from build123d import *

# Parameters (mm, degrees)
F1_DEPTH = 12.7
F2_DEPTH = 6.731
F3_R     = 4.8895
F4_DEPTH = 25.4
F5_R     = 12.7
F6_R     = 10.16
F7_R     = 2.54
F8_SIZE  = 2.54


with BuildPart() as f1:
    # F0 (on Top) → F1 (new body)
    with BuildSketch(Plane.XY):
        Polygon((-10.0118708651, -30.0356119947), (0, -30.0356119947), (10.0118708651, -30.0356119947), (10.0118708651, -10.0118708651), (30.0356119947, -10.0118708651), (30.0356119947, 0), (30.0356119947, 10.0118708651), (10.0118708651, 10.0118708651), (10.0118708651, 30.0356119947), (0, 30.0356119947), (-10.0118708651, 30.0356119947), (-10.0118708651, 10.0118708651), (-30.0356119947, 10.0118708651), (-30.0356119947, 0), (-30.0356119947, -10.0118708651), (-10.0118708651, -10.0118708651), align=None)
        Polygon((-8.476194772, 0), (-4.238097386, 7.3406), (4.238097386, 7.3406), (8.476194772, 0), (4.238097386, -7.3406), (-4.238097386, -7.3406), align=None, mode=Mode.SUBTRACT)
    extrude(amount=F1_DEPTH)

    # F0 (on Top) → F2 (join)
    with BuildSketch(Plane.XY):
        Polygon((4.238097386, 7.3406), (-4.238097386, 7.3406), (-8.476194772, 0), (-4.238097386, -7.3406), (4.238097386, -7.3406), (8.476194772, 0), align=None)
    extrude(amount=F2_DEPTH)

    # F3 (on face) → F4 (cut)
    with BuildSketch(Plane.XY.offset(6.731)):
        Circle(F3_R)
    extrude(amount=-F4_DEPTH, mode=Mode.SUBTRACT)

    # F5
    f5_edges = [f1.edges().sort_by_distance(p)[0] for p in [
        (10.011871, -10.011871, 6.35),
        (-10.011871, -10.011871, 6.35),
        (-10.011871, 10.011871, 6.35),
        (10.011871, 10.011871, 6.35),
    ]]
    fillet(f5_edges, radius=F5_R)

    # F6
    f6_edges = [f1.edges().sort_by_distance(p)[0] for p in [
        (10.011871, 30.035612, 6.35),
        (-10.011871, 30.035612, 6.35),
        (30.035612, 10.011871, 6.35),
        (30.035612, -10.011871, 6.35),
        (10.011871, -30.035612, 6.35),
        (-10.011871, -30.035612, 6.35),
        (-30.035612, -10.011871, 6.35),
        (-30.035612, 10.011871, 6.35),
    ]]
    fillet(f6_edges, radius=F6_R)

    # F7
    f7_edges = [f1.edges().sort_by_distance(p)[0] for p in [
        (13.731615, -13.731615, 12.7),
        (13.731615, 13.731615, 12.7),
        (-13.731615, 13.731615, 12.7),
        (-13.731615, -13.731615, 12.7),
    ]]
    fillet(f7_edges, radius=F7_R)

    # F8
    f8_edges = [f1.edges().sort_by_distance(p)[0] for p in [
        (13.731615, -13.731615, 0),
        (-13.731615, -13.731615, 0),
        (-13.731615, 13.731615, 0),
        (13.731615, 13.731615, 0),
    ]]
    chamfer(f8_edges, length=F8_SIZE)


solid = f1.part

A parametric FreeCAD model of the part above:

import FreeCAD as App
import Part
import Sketcher
from FreeCAD import Vector
Q = App.Units.Quantity


def edges_at(feature, points):
    """Names of the edges that pass closest to the given points."""
    edges = feature.Shape.Edges
    near = lambda p: min(range(len(edges)), key=lambda i: edges[i].distToShape(Part.Vertex(*p))[0])
    return sorted({f"Edge{near(p) + 1}" for p in points})

doc = App.newDocument("Part")
body = doc.addObject("PartDesign::Body", "Body")

# Sketch on XY plane
sketch1 = body.newObject("Sketcher::SketchObject", "Sketch")
sketch1.AttachmentSupport = (doc.getObject("XY_Plane"), [""])
sketch1.MapMode = "FlatFace"
sketch1.addGeometry([
    Part.LineSegment(Vector(-10, -30, 0), Vector(10, -30, 0)),  # 0
    Part.LineSegment(Vector(10, -30, 0), Vector(10, -10, 0)),  # 1
    Part.LineSegment(Vector(10, -10, 0), Vector(30, -10, 0)),  # 2
    Part.LineSegment(Vector(30, -10, 0), Vector(30, 10, 0)),  # 3
    Part.LineSegment(Vector(30, 10, 0), Vector(10, 10, 0)),  # 4
    Part.LineSegment(Vector(10, 10, 0), Vector(10, 30, 0)),  # 5
    Part.LineSegment(Vector(10, 30, 0), Vector(-10, 30, 0)),  # 6
    Part.LineSegment(Vector(-10, 30, 0), Vector(-10, 10, 0)),  # 7
    Part.LineSegment(Vector(-10, 10, 0), Vector(-30, 10, 0)),  # 8
    Part.LineSegment(Vector(-30, 10, 0), Vector(-30, -10, 0)),  # 9
    Part.LineSegment(Vector(-30, -10, 0), Vector(-10, -10, 0)),  # 10
    Part.LineSegment(Vector(-10, -10, 0), Vector(-10, -30, 0)),  # 11
    Part.LineSegment(Vector(-4, -7, 0), Vector(-8, 0, 0)),  # 12
    Part.LineSegment(Vector(-8, 0, 0), Vector(-4, 7, 0)),  # 13
    Part.LineSegment(Vector(-4, 7, 0), Vector(4, 7, 0)),  # 14
    Part.LineSegment(Vector(4, 7, 0), Vector(8, 0, 0)),  # 15
    Part.LineSegment(Vector(8, 0, 0), Vector(4, -7, 0)),  # 16
    Part.LineSegment(Vector(4, -7, 0), Vector(-4, -7, 0)),  # 17
], False)
sketch1.addConstraint([
    Sketcher.Constraint("Coincident", 0, 2, 1, 1),
    Sketcher.Constraint("Coincident", 1, 2, 2, 1),
    Sketcher.Constraint("Coincident", 2, 2, 3, 1),
    Sketcher.Constraint("Coincident", 3, 2, 4, 1),
    Sketcher.Constraint("Coincident", 4, 2, 5, 1),
    Sketcher.Constraint("Coincident", 5, 2, 6, 1),
    Sketcher.Constraint("Coincident", 6, 2, 7, 1),
    Sketcher.Constraint("Coincident", 7, 2, 8, 1),
    Sketcher.Constraint("Coincident", 8, 2, 9, 1),
    Sketcher.Constraint("Coincident", 9, 2, 10, 1),
    Sketcher.Constraint("Coincident", 10, 2, 11, 1),
    Sketcher.Constraint("Coincident", 11, 2, 0, 1),
    Sketcher.Constraint("Coincident", 12, 2, 13, 1),
    Sketcher.Constraint("Coincident", 13, 2, 14, 1),
    Sketcher.Constraint("Coincident", 14, 2, 15, 1),
    Sketcher.Constraint("Coincident", 15, 2, 16, 1),
    Sketcher.Constraint("Coincident", 16, 2, 17, 1),
    Sketcher.Constraint("Coincident", 17, 2, 12, 1),
    Sketcher.Constraint("Horizontal", 0),
    Sketcher.Constraint("Vertical", 1),
    Sketcher.Constraint("Horizontal", 2),
    Sketcher.Constraint("Vertical", 3),
    Sketcher.Constraint("Horizontal", 4),
    Sketcher.Constraint("Vertical", 5),
    Sketcher.Constraint("Horizontal", 6),
    Sketcher.Constraint("Vertical", 7),
    Sketcher.Constraint("Horizontal", 8),
    Sketcher.Constraint("Vertical", 9),
    Sketcher.Constraint("Horizontal", 10),
    Sketcher.Constraint("Vertical", 11),
    Sketcher.Constraint("Horizontal", 14),
    Sketcher.Constraint("Horizontal", 17),
    Sketcher.Constraint("Symmetric", 0, 2, 6, 2, -1, 1),
    Sketcher.Constraint("Symmetric", 2, 2, 8, 2, -1, 1),
    Sketcher.Constraint("Symmetric", 4, 2, 10, 2, -1, 1),
    Sketcher.Constraint("Symmetric", 12, 2, 15, 2, -1, 1),
    Sketcher.Constraint("Symmetric", 13, 2, 16, 2, -1, 1),
    Sketcher.Constraint("Symmetric", 4, 2, 7, 2, -2),
    Sketcher.Constraint("PointOnObject", 12, 2, -1),
    Sketcher.Constraint("Parallel", 12, 15),
    Sketcher.Constraint("Vertical", 14, 2, 16, 2),
    Sketcher.Constraint("Equal", 0, 2),
    Sketcher.Constraint("Equal", 10, 1),
    Sketcher.Constraint("Equal", 1, 3),
    Sketcher.Constraint("Angle", 12, Q("120 deg")),
    Sketcher.Constraint("DistanceY", -1, 1, 13, 2, Q("0.289 in")),
    Sketcher.Constraint("DistanceX", 0, 1, 0, 2, Q("20.023742 mm")),
    Sketcher.Constraint("DistanceX", 14, 1, 14, 2, Q("8.476195 mm")),
])
pad1 = body.newObject("PartDesign::Pad", "Pad")
pad1.Profile = sketch1
pad1.Length = Q("0.5 in")

# Sketch on XY plane
sketch2 = body.newObject("Sketcher::SketchObject", "Sketch001")
sketch2.AttachmentSupport = (doc.getObject("XY_Plane"), [""])
sketch2.MapMode = "FlatFace"
sketch2.addGeometry([
    Part.LineSegment(Vector(4, 7, 0), Vector(-4, 7, 0)),  # 0
    Part.LineSegment(Vector(-4, 7, 0), Vector(-8, 0, 0)),  # 1
    Part.LineSegment(Vector(-8, 0, 0), Vector(-4, -7, 0)),  # 2
    Part.LineSegment(Vector(-4, -7, 0), Vector(4, -7, 0)),  # 3
    Part.LineSegment(Vector(4, -7, 0), Vector(8, 0, 0)),  # 4
    Part.LineSegment(Vector(8, 0, 0), Vector(4, 7, 0)),  # 5
], False)
sketch2.addConstraint([
    Sketcher.Constraint("Coincident", 0, 2, 1, 1),
    Sketcher.Constraint("Coincident", 1, 2, 2, 1),
    Sketcher.Constraint("Coincident", 2, 2, 3, 1),
    Sketcher.Constraint("Coincident", 3, 2, 4, 1),
    Sketcher.Constraint("Coincident", 4, 2, 5, 1),
    Sketcher.Constraint("Coincident", 5, 2, 0, 1),
    Sketcher.Constraint("Horizontal", 0),
    Sketcher.Constraint("Horizontal", 3),
    Sketcher.Constraint("Symmetric", 0, 2, 3, 2, -1, 1),
    Sketcher.Constraint("Symmetric", 1, 2, 4, 2, -1, 1),
    Sketcher.Constraint("PointOnObject", 1, 2, -1),
    Sketcher.Constraint("Parallel", 2, 5),
    Sketcher.Constraint("Vertical", 0, 2, 2, 2),
    Sketcher.Constraint("Angle", 1, Q("-120 deg")),
    Sketcher.Constraint("DistanceY", -1, 1, 0, 2, Q("0.289 in")),
    Sketcher.Constraint("DistanceX", 0, 2, 0, 1, Q("8.476195 mm")),
])
pad2 = body.newObject("PartDesign::Pad", "Pad001")
pad2.Profile = sketch2
pad2.Length = Q("0.265 in")

# Sketch on XY plane
sketch3 = body.newObject("Sketcher::SketchObject", "Sketch002")
sketch3.AttachmentSupport = (doc.getObject("XY_Plane"), [""])
sketch3.MapMode = "FlatFace"
sketch3.AttachmentOffset = App.Placement(Vector(0, 0, 0.265 * 25.4), App.Rotation())
sketch3.addGeometry(Part.Circle(Vector(0, 0, 0), Vector(0, 0, 1), 4.9), False)
sketch3.addConstraint([
    Sketcher.Constraint("Coincident", 0, 3, -1, 1),
    Sketcher.Constraint("Diameter", 0, Q("0.385 in")),
])
pocket1 = body.newObject("PartDesign::Pocket", "Pocket")
pocket1.Profile = sketch3
pocket1.Length = Q("1 in")
doc.recompute()

fillet = body.newObject("PartDesign::Fillet", "Fillet")
fillet.Base = (pocket1, edges_at(pocket1, [
    (10.012, -10.012, 6.35),
    (-10.012, -10.012, 6.35),
    (-10.012, 10.012, 6.35),
    (10.012, 10.012, 6.35),
]))
fillet.Radius = Q("0.5 in")
doc.recompute()

fillet2 = body.newObject("PartDesign::Fillet", "Fillet001")
fillet2.Base = (fillet, edges_at(fillet, [
    (10.012, 30.036, 6.35),
    (-10.012, 30.036, 6.35),
    (30.036, 10.012, 6.35),
    (30.036, -10.012, 6.35),
    (10.012, -30.036, 6.35),
    (-10.012, -30.036, 6.35),
    (-30.036, -10.012, 6.35),
    (-30.036, 10.012, 6.35),
]))
fillet2.Radius = Q("0.4 in")
doc.recompute()

fillet3 = body.newObject("PartDesign::Fillet", "Fillet002")
fillet3.Base = (fillet2, edges_at(fillet2, [
    (13.732, -13.732, 12.7),
    (13.732, 13.732, 12.7),
    (-13.732, 13.732, 12.7),
    (-13.732, -13.732, 12.7),
]))
fillet3.Radius = Q("0.1 in")
doc.recompute()

chamfer = body.newObject("PartDesign::Chamfer", "Chamfer")
chamfer.Base = (fillet3, edges_at(fillet3, [
    (13.732, -13.732, 0),
    (-13.732, -13.732, 0),
    (-13.732, 13.732, 0),
    (13.732, 13.732, 0),
]))
chamfer.Size = Q("0.1 in")

doc.recompute()
